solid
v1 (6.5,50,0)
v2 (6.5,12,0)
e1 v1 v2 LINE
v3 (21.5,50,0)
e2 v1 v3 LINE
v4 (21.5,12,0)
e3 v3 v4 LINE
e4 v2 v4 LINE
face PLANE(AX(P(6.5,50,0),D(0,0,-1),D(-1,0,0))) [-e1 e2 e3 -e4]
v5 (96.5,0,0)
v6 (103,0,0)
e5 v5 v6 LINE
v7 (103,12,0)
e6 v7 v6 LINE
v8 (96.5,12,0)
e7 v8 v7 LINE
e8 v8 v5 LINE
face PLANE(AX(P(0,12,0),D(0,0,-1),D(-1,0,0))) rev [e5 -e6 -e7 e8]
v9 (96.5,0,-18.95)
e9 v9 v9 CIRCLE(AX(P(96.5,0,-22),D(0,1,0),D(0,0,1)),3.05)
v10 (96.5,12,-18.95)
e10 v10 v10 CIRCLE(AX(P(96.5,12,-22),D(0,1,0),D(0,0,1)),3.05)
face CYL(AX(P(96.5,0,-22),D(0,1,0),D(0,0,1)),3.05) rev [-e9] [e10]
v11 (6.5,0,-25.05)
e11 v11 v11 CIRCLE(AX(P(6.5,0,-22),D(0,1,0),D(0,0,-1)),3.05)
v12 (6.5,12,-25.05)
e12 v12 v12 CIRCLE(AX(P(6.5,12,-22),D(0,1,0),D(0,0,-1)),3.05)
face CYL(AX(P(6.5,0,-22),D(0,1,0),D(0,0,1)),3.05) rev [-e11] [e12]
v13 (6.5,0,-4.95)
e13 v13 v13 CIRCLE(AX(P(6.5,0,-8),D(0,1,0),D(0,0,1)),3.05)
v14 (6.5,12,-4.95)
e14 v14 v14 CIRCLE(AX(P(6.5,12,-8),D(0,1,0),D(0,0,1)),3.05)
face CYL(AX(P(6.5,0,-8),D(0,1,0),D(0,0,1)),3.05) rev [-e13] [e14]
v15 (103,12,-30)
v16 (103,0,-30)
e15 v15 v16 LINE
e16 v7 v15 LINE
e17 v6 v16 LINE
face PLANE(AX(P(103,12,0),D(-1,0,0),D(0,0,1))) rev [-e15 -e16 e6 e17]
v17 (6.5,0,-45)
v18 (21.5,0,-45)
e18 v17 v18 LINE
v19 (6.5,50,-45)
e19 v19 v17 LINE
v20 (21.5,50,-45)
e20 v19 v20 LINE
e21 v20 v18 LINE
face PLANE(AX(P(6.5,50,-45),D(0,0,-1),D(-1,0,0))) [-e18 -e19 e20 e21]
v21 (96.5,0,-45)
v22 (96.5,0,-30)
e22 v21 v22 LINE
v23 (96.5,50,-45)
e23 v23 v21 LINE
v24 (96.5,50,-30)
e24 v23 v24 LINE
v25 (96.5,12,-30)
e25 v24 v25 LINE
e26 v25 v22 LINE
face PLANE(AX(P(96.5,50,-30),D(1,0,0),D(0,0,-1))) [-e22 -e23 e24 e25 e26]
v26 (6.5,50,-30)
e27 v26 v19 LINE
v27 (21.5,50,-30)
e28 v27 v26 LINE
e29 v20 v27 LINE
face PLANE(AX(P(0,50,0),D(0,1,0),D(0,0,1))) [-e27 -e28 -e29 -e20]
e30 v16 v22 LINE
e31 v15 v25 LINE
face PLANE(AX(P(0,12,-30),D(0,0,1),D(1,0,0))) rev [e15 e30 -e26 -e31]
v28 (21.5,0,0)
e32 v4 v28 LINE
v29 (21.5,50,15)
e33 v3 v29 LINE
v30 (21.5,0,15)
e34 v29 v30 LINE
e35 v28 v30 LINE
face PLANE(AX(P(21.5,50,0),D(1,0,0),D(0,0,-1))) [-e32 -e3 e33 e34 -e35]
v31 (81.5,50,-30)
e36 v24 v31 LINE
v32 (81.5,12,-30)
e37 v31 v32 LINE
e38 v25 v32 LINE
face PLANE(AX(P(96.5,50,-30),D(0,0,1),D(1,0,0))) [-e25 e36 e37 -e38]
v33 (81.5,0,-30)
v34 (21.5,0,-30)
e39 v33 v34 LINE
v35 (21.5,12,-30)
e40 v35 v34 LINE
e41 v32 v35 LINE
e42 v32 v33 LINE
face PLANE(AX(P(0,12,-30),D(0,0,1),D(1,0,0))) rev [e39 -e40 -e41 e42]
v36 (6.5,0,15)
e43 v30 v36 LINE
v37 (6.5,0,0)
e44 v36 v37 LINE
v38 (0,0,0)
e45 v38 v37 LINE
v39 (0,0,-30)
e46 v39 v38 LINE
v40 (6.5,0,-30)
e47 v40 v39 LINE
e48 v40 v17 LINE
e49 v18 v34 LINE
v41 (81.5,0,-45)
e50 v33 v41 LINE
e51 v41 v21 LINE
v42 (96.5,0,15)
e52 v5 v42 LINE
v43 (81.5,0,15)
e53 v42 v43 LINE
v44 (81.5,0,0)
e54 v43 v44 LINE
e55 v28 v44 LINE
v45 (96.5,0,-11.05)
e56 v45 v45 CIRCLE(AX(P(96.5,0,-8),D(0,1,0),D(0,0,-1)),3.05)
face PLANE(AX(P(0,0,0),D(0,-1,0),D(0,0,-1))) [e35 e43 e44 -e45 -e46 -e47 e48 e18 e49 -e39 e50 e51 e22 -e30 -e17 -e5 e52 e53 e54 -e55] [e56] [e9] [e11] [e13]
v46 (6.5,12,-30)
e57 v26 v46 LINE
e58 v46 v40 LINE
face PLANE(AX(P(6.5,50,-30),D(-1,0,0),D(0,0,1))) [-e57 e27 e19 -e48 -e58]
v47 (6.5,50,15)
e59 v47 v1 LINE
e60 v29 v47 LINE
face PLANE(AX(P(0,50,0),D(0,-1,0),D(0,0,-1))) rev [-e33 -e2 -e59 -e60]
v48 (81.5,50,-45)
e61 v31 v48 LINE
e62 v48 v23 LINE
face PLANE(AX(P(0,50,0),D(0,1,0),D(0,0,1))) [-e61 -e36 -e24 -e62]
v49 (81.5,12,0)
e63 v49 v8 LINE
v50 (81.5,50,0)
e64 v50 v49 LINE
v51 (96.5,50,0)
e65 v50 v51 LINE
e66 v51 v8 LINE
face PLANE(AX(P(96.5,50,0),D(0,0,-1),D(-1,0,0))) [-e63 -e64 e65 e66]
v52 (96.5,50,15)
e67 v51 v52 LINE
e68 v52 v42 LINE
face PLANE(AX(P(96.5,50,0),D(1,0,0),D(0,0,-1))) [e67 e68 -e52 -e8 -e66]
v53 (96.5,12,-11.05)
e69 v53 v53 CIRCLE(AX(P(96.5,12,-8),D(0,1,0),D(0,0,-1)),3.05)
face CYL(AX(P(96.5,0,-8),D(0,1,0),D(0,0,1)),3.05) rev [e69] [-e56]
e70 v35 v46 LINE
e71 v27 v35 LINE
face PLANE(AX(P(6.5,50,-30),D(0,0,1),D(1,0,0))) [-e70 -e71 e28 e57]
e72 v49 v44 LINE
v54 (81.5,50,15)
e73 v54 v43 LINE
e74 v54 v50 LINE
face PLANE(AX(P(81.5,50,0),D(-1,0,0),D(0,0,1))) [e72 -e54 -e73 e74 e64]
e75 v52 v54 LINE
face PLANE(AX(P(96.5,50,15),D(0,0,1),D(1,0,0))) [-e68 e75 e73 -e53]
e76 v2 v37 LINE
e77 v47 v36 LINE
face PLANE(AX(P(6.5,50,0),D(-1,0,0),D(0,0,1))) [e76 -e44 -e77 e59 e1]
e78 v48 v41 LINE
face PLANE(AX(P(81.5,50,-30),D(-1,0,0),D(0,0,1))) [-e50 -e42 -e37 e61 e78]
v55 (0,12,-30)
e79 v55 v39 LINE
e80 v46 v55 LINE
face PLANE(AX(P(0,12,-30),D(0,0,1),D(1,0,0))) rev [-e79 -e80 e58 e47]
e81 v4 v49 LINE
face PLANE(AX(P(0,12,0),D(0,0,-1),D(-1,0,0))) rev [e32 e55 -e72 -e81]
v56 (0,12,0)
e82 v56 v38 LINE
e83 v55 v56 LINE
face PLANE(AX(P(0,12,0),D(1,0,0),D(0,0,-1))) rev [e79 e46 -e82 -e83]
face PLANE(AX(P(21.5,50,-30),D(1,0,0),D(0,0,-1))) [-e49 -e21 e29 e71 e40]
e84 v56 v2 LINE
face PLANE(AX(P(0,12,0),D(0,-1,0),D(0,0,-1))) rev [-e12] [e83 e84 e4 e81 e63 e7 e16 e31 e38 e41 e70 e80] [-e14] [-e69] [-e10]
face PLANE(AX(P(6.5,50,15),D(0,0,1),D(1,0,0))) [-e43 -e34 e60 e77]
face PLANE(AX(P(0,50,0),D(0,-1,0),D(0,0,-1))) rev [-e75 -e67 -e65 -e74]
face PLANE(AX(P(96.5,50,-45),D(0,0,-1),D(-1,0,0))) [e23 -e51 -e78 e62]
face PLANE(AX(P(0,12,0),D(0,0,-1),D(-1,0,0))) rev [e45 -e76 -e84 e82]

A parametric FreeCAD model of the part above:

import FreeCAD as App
import Part
import Sketcher

V = App.Vector

doc = App.newDocument("Part")
body = doc.addObject("PartDesign::Body", "Body")

# Sketch on XZ plane
sketch1 = doc.addObject("Sketcher::SketchObject", "Sketch")
body.addObject(sketch1)
sketch1.AttachmentSupport = (doc.XZ_Plane, [""])
sketch1.MapMode = "FlatFace"
sketch1.addGeometry(Part.LineSegment(V(0, -30, 0), V(0, 0, 0)), False)
sketch1.addGeometry(Part.LineSegment(V(0, 0, 0), V(103, 0, 0)), False)
sketch1.addGeometry(Part.LineSegment(V(103, 0, 0), V(103, -30, 0)), False)
sketch1.addGeometry(Part.LineSegment(V(103, -30, 0), V(0, -30, 0)), False)
sketch1.addConstraint(Sketcher.Constraint("Coincident", 0, 2, 1, 1))
sketch1.addConstraint(Sketcher.Constraint("Coincident", 1, 2, 2, 1))
sketch1.addConstraint(Sketcher.Constraint("Coincident", 2, 2, 3, 1))
sketch1.addConstraint(Sketcher.Constraint("Coincident", 3, 2, 0, 1))
sketch1.addConstraint(Sketcher.Constraint("Vertical", 0))
sketch1.addConstraint(Sketcher.Constraint("Horizontal", 1))
sketch1.addConstraint(Sketcher.Constraint("Vertical", 2))
sketch1.addConstraint(Sketcher.Constraint("Horizontal", 3))
sketch1.addConstraint(Sketcher.Constraint("Coincident", 0, 2, -1, 1))
sketch1.addConstraint(Sketcher.Constraint("DistanceX", 1, 1, 1, 2, 103.0))
sketch1.addConstraint(Sketcher.Constraint("DistanceY", 0, 1, 0, 2, 30.0))
pad1 = doc.addObject("PartDesign::Pad", "Pad")
body.addObject(pad1)
pad1.Profile = sketch1
pad1.Length = 12
pad1.Reversed = True

# Sketch on XZ plane
sketch2 = doc.addObject("Sketcher::SketchObject", "Sketch001")
body.addObject(sketch2)
sketch2.AttachmentSupport = (doc.XZ_Plane, [""])
sketch2.MapMode = "FlatFace"
sketch2.AttachmentOffset = App.Placement(V(0, 0, -12), App.Rotation())
sketch2.addGeometry(Part.Circle(V(6.5, -8, 0), V(0, 0, 1), 3), False)
sketch2.addGeometry(Part.Circle(V(6.5, -22, 0), V(0, 0, 1), 3), False)
sketch2.addGeometry(Part.Circle(V(96.5, -8, 0), V(0, 0, 1), 3), False)
sketch2.addGeometry(Part.Circle(V(96.5, -22, 0), V(0, 0, 1), 3), False)
sketch2.addConstraint(Sketcher.Constraint("Equal", 0, 1))
sketch2.addConstraint(Sketcher.Constraint("Equal", 1, 2))
sketch2.addConstraint(Sketcher.Constraint("Equal", 2, 3))
sketch2.addConstraint(Sketcher.Constraint("Horizontal", 0, 3, 2, 3))
sketch2.addConstraint(Sketcher.Constraint("Horizontal", 1, 3, 3, 3))
sketch2.addConstraint(Sketcher.Constraint("Vertical", 0, 3, 1, 3))
sketch2.addConstraint(Sketcher.Constraint("Vertical", 2, 3, 3, 3))
sketch2.addConstraint(Sketcher.Constraint("Diameter", 0, 6.1))
sketch2.addConstraint(Sketcher.Constraint("DistanceY", 0, 3, -1, 1, 8.0))
sketch2.addConstraint(Sketcher.Constraint("DistanceY", 1, 3, -1, 1, 22.0))
sketch2.addConstraint(Sketcher.Constraint("DistanceX", 0, 3, 2, 3, 90.0))
sketch2.addConstraint(Sketcher.Constraint("DistanceX", -1, 1, 0, 3, 6.5))
pocket1 = doc.addObject("PartDesign::Pocket", "Pocket")
body.addObject(pocket1)
pocket1.Profile = sketch2
pocket1.Length = 12
pocket1.Reversed = True

# Sketch on XZ plane
sketch3 = doc.addObject("Sketcher::SketchObject", "Sketch002")
body.addObject(sketch3)
sketch3.AttachmentSupport = (doc.XZ_Plane, [""])
sketch3.MapMode = "FlatFace"
sketch3.addGeometry(Part.LineSegment(V(82, 15, 0), V(82, 0, 0)), False)
sketch3.addGeometry(Part.LineSegment(V(82, 0, 0), V(96, 0, 0)), False)
sketch3.addGeometry(Part.LineSegment(V(96, 0, 0), V(96, 15, 0)), False)
sketch3.addGeometry(Part.LineSegment(V(96, 15, 0), V(82, 15, 0)), False)
sketch3.addGeometry(Part.LineSegment(V(82, -30, 0), V(82, -45, 0)), False)
sketch3.addGeometry(Part.LineSegment(V(82, -45, 0), V(96, -45, 0)), False)
sketch3.addGeometry(Part.LineSegment(V(96, -45, 0), V(96, -30, 0)), False)
sketch3.addGeometry(Part.LineSegment(V(96, -30, 0), V(82, -30, 0)), False)
sketch3.addGeometry(Part.LineSegment(V(6, -30, 0), V(6, -45, 0)), False)
sketch3.addGeometry(Part.LineSegment(V(6, -45, 0), V(22, -45, 0)), False)
sketch3.addGeometry(Part.LineSegment(V(22, -45, 0), V(22, -30, 0)), False)
sketch3.addGeometry(Part.LineSegment(V(22, -30, 0), V(6, -30, 0)), False)
sketch3.addGeometry(Part.LineSegment(V(6, 15, 0), V(6, 0, 0)), False)
sketch3.addGeometry(Part.LineSegment(V(6, 0, 0), V(22, 0, 0)), False)
sketch3.addGeometry(Part.LineSegment(V(22, 0, 0), V(22, 15, 0)), False)
sketch3.addGeometry(Part.LineSegment(V(22, 15, 0), V(6, 15, 0)), False)
sketch3.addConstraint(Sketcher.Constraint("Coincident", 0, 2, 1, 1))
sketch3.addConstraint(Sketcher.Constraint("Coincident", 1, 2, 2, 1))
sketch3.addConstraint(Sketcher.Constraint("Coincident", 2, 2, 3, 1))
sketch3.addConstraint(Sketcher.Constraint("Coincident", 3, 2, 0, 1))
sketch3.addConstraint(Sketcher.Constraint("Coincident", 4, 2, 5, 1))
sketch3.addConstraint(Sketcher.Constraint("Coincident", 5, 2, 6, 1))
sketch3.addConstraint(Sketcher.Constraint("Coincident", 6, 2, 7, 1))
sketch3.addConstraint(Sketcher.Constraint("Coincident", 7, 2, 4, 1))
sketch3.addConstraint(Sketcher.Constraint("Coincident", 8, 2, 9, 1))
sketch3.addConstraint(Sketcher.Constraint("Coincident", 9, 2, 10, 1))
sketch3.addConstraint(Sketcher.Constraint("Coincident", 10, 2, 11, 1))
sketch3.addConstraint(Sketcher.Constraint("Coincident", 11, 2, 8, 1))
sketch3.addConstraint(Sketcher.Constraint("Coincident", 12, 2, 13, 1))
sketch3.addConstraint(Sketcher.Constraint("Coincident", 13, 2, 14, 1))
sketch3.addConstraint(Sketcher.Constraint("Coincident", 14, 2, 15, 1))
sketch3.addConstraint(Sketcher.Constraint("Coincident", 15, 2, 12, 1))
sketch3.addConstraint(Sketcher.Constraint("Vertical", 0))
sketch3.addConstraint(Sketcher.Constraint("Horizontal", 1))
sketch3.addConstraint(Sketcher.Constraint("Vertical", 2))
sketch3.addConstraint(Sketcher.Constraint("Horizontal", 3))
sketch3.addConstraint(Sketcher.Constraint("Vertical", 4))
sketch3.addConstraint(Sketcher.Constraint("Horizontal", 5))
sketch3.addConstraint(Sketcher.Constraint("Vertical", 6))
sketch3.addConstraint(Sketcher.Constraint("Horizontal", 7))
sketch3.addConstraint(Sketcher.Constraint("Vertical", 8))
sketch3.addConstraint(Sketcher.Constraint("Horizontal", 9))
sketch3.addConstraint(Sketcher.Constraint("Vertical", 10))
sketch3.addConstraint(Sketcher.Constraint("Horizontal", 11))
sketch3.addConstraint(Sketcher.Constraint("Vertical", 12))
sketch3.addConstraint(Sketcher.Constraint("Horizontal", 13))
sketch3.addConstraint(Sketcher.Constraint("Vertical", 14))
sketch3.addConstraint(Sketcher.Constraint("Horizontal", 15))
sketch3.addConstraint(Sketcher.Constraint("PointOnObject", 0, 2, -1))
sketch3.addConstraint(Sketcher.Constraint("PointOnObject", 12, 2, -1))
sketch3.addConstraint(Sketcher.Constraint("Horizontal", 5, 2, 8, 2))
sketch3.addConstraint(Sketcher.Constraint("Horizontal", 7, 2, 10, 2))
sketch3.addConstraint(Sketcher.Constraint("Horizontal", 3, 2, 14, 2))
sketch3.addConstraint(Sketcher.Constraint("Vertical", 3, 2, 4, 2))
sketch3.addConstraint(Sketcher.Constraint("Vertical", 2, 2, 5, 2))
sketch3.addConstraint(Sketcher.Constraint("Vertical", 11, 2, 12, 2))
sketch3.addConstraint(Sketcher.Constraint("Vertical", 10, 2, 13, 2))
sketch3.addConstraint(Sketcher.Constraint("Equal", 7, 9))
sketch3.addConstraint(Sketcher.Constraint("Equal", 15, 0))
sketch3.addConstraint(Sketcher.Constraint("Equal", 2, 4))
sketch3.addConstraint(Sketcher.Constraint("DistanceX", 1, 1, 1, 2, 15.0))
sketch3.addConstraint(Sketcher.Constraint("DistanceY", 4, 2, -1, 1, 45.0))
sketch3.addConstraint(Sketcher.Constraint("DistanceX", 8, 2, 4, 2, 75.0))
sketch3.addConstraint(Sketcher.Constraint("DistanceX", -1, 1, 0, 2, 81.5))
pad2 = doc.addObject("PartDesign::Pad", "Pad001")
body.addObject(pad2)
pad2.Profile = sketch3
pad2.Length = 50
pad2.Reversed = True

doc.recompute()
